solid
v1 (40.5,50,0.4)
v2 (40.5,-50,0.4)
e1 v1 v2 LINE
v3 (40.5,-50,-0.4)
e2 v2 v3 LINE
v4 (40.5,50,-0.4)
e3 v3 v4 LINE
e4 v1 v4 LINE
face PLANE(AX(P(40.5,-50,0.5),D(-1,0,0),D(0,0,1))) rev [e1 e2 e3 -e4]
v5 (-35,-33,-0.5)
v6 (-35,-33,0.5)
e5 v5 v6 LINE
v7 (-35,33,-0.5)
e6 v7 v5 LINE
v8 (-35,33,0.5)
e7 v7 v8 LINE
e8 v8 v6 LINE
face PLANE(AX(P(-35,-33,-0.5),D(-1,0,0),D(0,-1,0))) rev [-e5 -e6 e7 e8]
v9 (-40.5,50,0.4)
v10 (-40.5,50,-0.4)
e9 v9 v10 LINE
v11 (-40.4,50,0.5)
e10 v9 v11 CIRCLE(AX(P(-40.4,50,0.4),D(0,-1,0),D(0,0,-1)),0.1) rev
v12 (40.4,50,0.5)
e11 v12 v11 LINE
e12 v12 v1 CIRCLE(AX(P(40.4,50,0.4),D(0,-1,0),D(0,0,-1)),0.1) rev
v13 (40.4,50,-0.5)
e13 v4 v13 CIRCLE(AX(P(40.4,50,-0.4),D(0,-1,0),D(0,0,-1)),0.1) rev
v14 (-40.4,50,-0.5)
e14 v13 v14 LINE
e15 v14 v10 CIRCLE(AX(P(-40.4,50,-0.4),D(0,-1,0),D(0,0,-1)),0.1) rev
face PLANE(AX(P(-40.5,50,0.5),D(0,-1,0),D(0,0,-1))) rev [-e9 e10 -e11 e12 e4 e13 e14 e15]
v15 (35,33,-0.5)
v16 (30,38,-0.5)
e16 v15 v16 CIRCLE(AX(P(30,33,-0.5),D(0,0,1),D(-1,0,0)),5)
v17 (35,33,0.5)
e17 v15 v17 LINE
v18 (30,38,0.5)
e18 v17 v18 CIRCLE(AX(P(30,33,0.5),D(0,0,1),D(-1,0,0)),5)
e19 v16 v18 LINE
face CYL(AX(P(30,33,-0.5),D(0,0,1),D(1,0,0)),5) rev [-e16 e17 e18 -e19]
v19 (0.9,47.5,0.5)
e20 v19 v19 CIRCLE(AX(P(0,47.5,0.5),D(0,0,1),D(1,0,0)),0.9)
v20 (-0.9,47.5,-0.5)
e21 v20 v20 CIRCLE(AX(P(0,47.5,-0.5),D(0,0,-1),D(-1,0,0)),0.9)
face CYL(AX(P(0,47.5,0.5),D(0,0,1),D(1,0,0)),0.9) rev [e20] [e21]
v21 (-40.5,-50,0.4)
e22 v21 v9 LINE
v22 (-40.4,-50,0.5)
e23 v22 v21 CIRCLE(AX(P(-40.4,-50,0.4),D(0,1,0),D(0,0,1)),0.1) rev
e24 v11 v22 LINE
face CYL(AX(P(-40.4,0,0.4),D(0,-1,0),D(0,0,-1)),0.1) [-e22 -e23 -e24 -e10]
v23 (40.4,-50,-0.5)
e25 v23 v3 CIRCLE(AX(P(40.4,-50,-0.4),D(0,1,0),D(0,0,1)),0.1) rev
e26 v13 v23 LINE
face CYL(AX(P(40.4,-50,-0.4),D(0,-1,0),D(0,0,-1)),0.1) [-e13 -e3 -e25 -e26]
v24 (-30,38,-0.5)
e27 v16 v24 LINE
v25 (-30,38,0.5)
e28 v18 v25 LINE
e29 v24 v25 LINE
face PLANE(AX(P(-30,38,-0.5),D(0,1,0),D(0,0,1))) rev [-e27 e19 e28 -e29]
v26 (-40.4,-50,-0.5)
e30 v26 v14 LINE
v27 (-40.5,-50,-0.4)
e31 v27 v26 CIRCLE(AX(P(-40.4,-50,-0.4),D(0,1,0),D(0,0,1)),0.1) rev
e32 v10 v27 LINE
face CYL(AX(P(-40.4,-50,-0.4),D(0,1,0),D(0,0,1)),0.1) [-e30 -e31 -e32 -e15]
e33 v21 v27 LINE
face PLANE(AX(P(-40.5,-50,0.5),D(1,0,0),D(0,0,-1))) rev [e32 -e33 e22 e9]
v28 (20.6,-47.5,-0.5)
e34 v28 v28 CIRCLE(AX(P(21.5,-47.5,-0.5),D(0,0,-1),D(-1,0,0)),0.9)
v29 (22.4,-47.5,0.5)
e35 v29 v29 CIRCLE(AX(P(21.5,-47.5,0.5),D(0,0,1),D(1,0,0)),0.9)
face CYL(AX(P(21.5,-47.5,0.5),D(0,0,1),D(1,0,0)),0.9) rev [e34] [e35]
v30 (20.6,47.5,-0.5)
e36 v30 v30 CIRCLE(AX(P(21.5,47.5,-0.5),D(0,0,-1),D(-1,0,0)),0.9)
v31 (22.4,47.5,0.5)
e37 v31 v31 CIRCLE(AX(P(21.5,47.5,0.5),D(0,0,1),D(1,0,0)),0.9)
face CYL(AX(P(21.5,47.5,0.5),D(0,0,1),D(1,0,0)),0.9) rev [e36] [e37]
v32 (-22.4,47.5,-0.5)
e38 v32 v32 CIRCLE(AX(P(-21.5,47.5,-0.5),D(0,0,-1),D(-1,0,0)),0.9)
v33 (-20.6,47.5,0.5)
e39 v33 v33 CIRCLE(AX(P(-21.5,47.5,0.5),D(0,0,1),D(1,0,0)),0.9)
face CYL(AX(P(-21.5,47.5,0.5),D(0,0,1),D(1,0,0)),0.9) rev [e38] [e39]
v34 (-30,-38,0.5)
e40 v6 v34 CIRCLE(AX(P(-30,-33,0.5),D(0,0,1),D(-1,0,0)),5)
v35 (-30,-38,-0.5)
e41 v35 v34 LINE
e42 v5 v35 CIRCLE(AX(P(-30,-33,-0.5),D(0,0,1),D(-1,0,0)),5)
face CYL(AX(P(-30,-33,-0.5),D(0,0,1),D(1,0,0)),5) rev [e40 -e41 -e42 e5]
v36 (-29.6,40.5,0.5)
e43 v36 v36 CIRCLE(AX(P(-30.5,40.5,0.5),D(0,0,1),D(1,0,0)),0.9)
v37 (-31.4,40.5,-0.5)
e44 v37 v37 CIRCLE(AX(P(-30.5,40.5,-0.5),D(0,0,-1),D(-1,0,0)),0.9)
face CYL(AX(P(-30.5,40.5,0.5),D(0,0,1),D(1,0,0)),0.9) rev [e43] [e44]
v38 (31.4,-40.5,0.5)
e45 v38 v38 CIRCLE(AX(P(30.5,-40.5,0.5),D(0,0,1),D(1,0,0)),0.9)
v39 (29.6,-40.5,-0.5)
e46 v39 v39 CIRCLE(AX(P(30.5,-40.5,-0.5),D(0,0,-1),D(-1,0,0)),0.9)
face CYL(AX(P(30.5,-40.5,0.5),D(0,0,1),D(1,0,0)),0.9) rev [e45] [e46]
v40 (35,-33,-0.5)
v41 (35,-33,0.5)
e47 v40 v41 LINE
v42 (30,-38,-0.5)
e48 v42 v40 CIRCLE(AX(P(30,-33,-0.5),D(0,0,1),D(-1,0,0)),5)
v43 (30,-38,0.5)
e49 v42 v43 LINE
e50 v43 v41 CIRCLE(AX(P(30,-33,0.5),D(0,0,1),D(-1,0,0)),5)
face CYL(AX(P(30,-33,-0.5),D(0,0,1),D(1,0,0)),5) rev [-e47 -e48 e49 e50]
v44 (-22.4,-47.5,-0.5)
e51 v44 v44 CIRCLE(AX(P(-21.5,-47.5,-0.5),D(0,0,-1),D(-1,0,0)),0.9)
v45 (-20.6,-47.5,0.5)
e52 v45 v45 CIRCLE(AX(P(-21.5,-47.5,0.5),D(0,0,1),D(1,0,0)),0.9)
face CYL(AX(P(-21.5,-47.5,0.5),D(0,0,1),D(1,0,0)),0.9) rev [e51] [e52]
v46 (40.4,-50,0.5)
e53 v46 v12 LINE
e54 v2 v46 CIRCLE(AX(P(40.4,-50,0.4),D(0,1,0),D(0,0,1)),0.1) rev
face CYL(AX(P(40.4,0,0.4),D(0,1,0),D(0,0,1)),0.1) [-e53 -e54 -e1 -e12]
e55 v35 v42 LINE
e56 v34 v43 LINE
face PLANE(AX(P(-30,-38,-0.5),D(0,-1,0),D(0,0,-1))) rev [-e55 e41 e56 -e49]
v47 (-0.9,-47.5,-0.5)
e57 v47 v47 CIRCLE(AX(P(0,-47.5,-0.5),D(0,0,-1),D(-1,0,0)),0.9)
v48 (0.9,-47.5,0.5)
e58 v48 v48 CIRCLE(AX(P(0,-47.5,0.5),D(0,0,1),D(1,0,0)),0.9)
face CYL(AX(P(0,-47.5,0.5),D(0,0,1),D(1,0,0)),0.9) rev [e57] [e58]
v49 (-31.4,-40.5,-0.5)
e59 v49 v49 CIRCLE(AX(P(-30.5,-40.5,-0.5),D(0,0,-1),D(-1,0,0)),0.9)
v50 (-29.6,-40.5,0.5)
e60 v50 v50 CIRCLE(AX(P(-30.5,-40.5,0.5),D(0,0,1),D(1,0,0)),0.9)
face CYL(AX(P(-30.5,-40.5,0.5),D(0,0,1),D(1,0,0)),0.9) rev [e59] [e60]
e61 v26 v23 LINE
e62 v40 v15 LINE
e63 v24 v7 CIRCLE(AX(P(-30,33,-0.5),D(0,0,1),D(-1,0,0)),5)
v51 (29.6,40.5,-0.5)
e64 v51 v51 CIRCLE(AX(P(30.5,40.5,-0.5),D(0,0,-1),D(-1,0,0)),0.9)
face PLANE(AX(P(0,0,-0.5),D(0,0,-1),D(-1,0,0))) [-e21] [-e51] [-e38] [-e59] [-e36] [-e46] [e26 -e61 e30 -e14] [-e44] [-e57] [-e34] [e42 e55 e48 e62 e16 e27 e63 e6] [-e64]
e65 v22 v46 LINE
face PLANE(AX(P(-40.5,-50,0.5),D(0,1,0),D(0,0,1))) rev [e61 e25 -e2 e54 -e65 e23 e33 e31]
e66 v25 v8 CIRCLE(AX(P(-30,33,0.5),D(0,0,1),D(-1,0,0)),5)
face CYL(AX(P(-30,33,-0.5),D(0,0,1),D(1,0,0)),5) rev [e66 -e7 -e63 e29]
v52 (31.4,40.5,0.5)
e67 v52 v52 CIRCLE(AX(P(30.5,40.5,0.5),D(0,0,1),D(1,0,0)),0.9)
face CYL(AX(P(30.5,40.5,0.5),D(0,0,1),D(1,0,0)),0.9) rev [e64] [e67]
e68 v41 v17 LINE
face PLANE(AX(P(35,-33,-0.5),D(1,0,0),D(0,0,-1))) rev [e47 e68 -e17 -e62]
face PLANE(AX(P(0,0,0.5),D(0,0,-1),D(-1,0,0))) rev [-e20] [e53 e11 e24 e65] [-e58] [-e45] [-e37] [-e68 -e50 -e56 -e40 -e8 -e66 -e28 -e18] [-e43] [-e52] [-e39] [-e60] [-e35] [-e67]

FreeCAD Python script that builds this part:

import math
import FreeCAD as App
import Part
import Sketcher
from FreeCAD import Vector
Q = App.Units.Quantity


def edges_at(feature, points):
    """Names of the edges that pass closest to the given points."""
    edges = feature.Shape.Edges
    near = lambda p: min(range(len(edges)), key=lambda i: edges[i].distToShape(Part.Vertex(*p))[0])
    return sorted({f"Edge{near(p) + 1}" for p in points})


def add_polygon(sketch, points):
    """Adds a closed chain of lines whose ends are joined by coincident constraints."""
    first, n = sketch.GeometryCount, len(points)
    for a, b in zip(points, points[1:] + points[:1]):
        sketch.addGeometry(Part.LineSegment(App.Vector(*a, 0), App.Vector(*b, 0)), False)
    for i in range(n):
        sketch.addConstraint(Sketcher.Constraint("Coincident", first + i, 2, first + (i + 1) % n, 1))

doc = App.newDocument("Part")
params = doc.addObject("Spreadsheet::Sheet", "Params")
for row, (alias, value) in enumerate([
    ("sketch1_width", "81 mm"),
    ("sketch1_height", "100 mm"),
    ("pad1_length", "1 mm"),
    ("sketch2_radius", "5 mm"),
    ("sketch2_width", "60 mm"),
    ("sketch2_height", "66 mm"),
    ("sketch3_diameter", "1.8 mm"),
    ("hole_diameter", "1.8 mm"),
    ("hole_depth", "100 mm"),
    ("sketch4_diameter", "1.8 mm"),
    ("hole2_diameter", "1.8 mm"),
    ("hole2_depth", "100 mm"),
    ("sketch5_diameter", "1.8 mm"),
    ("hole3_diameter", "1.8 mm"),
    ("hole3_depth", "200 mm"),
    ("fillet_radius", "0.1 mm"),
], start=1):
    params.set(f"A{row}", alias)
    params.set(f"B{row}", "=" + value)
    params.setAlias(f"B{row}", alias)

body = doc.addObject("PartDesign::Body", "Body")

sketch1 = body.newObject("Sketcher::SketchObject", "Sketch")
sketch1.AttachmentSupport = (doc.getObject("XY_Plane"), [""])
sketch1.MapMode = "FlatFace"
add_polygon(sketch1, [(-40.5, 50), (-40.5, -50), (40.5, -50), (40.5, 50)])
sketch1.addConstraint(Sketcher.Constraint("Vertical", 0))
sketch1.addConstraint(Sketcher.Constraint("Horizontal", 1))
sketch1.addConstraint(Sketcher.Constraint("Vertical", 2))
sketch1.addConstraint(Sketcher.Constraint("Horizontal", 3))
sketch1.addConstraint(Sketcher.Constraint("Symmetric", 0, 2, 2, 2, -1, 1))
sketch1.addConstraint(Sketcher.Constraint("DistanceX", 1, 1, 1, 2, Q("81 mm")))
sketch1.addConstraint(Sketcher.Constraint("DistanceY", 0, 2, 0, 1, Q("100 mm")))
sketch1.setExpression("Constraints[9]", "Params.sketch1_width")
sketch1.setExpression("Constraints[10]", "Params.sketch1_height")
pad1 = body.newObject("PartDesign::Pad", "Pad")
pad1.Profile = sketch1
pad1.setExpression("Length", "Params.pad1_length")
pad1.Midplane = True

sketch2 = body.newObject("Sketcher::SketchObject", "Sketch001")
sketch2.AttachmentSupport = (doc.getObject("XY_Plane"), [""])
sketch2.MapMode = "FlatFace"
sketch2.AttachmentOffset = App.Placement(Vector(0, 0, 0.5), App.Rotation())
sketch2.addGeometry(Part.LineSegment(Vector(-30, -38, 0), Vector(30, -38, 0)), False)
sketch2.addGeometry(Part.ArcOfCircle(Part.Circle(Vector(30, -33, 0), Vector(0, 0, 1), 5), math.radians(-90), math.radians(0)), False)
sketch2.addGeometry(Part.LineSegment(Vector(35, -33, 0), Vector(35, 33, 0)), False)
sketch2.addGeometry(Part.ArcOfCircle(Part.Circle(Vector(30, 33, 0), Vector(0, 0, 1), 5), math.radians(0), math.radians(90)), False)
sketch2.addGeometry(Part.LineSegment(Vector(30, 38, 0), Vector(-30, 38, 0)), False)
sketch2.addGeometry(Part.ArcOfCircle(Part.Circle(Vector(-30, 33, 0), Vector(0, 0, 1), 5), math.radians(90), math.radians(180)), False)
sketch2.addGeometry(Part.LineSegment(Vector(-35, 33, 0), Vector(-35, -33, 0)), False)
sketch2.addGeometry(Part.ArcOfCircle(Part.Circle(Vector(-30, -33, 0), Vector(0, 0, 1), 5), math.radians(180), math.radians(270)), False)
sketch2.addConstraint(Sketcher.Constraint("Tangent", 0, 2, 1, 1))
sketch2.addConstraint(Sketcher.Constraint("Tangent", 1, 2, 2, 1))
sketch2.addConstraint(Sketcher.Constraint("Tangent", 2, 2, 3, 1))
sketch2.addConstraint(Sketcher.Constraint("Tangent", 3, 2, 4, 1))
sketch2.addConstraint(Sketcher.Constraint("Tangent", 4, 2, 5, 1))
sketch2.addConstraint(Sketcher.Constraint("Tangent", 5, 2, 6, 1))
sketch2.addConstraint(Sketcher.Constraint("Tangent", 6, 2, 7, 1))
sketch2.addConstraint(Sketcher.Constraint("Tangent", 7, 2, 0, 1))
sketch2.addConstraint(Sketcher.Constraint("Horizontal", 0))
sketch2.addConstraint(Sketcher.Constraint("Vertical", 2))
sketch2.addConstraint(Sketcher.Constraint("Horizontal", 4))
sketch2.addConstraint(Sketcher.Constraint("Vertical", 6))
sketch2.addConstraint(Sketcher.Constraint("Equal", 1, 3))
sketch2.addConstraint(Sketcher.Constraint("Equal", 3, 5))
sketch2.addConstraint(Sketcher.Constraint("Equal", 5, 7))
sketch2.addConstraint(Sketcher.Constraint("Symmetric", 1, 3, 5, 3, -1, 1))
sketch2.addConstraint(Sketcher.Constraint("Radius", 1, Q("5 mm")))
sketch2.addConstraint(Sketcher.Constraint("DistanceX", 0, 1, 0, 2, Q("60 mm")))
sketch2.addConstraint(Sketcher.Constraint("DistanceY", 2, 1, 2, 2, Q("66 mm")))
sketch2.setExpression("Constraints[16]", "Params.sketch2_radius")
sketch2.setExpression("Constraints[17]", "Params.sketch2_width")
sketch2.setExpression("Constraints[18]", "Params.sketch2_height")
pocket1 = body.newObject("PartDesign::Pocket", "Pocket")
pocket1.Profile = sketch2
pocket1.Type = "ThroughAll"

sketch3 = body.newObject("Sketcher::SketchObject", "Sketch002")
sketch3.AttachmentSupport = (doc.getObject("XY_Plane"), [""])
sketch3.MapMode = "FlatFace"
sketch3.AttachmentOffset = App.Placement(Vector(0, 0, 0.5), App.Rotation())
sketch3.addGeometry(Part.Circle(Vector(-30.5, 40.5, 0), Vector(0, 0, 1), 0.9), False)
sketch3.addGeometry(Part.Circle(Vector(30.5, 40.5, 0), Vector(0, 0, 1), 0.9), False)
sketch3.addGeometry(Part.Circle(Vector(-30.5, -40.5, 0), Vector(0, 0, 1), 0.9), False)
sketch3.addGeometry(Part.Circle(Vector(30.5, -40.5, 0), Vector(0, 0, 1), 0.9), False)
sketch3.addConstraint(Sketcher.Constraint("Equal", 0, 1))
sketch3.addConstraint(Sketcher.Constraint("Equal", 1, 2))
sketch3.addConstraint(Sketcher.Constraint("Equal", 2, 3))
sketch3.addConstraint(Sketcher.Constraint("Symmetric", 1, 3, 2, 3, -1, 1))
sketch3.addConstraint(Sketcher.Constraint("Symmetric", 0, 3, 3, 3, -1, 1))
sketch3.addConstraint(Sketcher.Constraint("Symmetric", 0, 3, 1, 3, -2))
sketch3.addConstraint(Sketcher.Constraint("Diameter", 0, Q("1.8 mm")))
sketch3.addConstraint(Sketcher.Constraint("DistanceX", 0, 3, 1, 3, Q("61 mm")))
sketch3.addConstraint(Sketcher.Constraint("DistanceY", 2, 3, 0, 3, Q("81 mm")))
sketch3.setExpression("Constraints[6]", "Params.sketch3_diameter")
doc.recompute()
hole = body.newObject("PartDesign::Hole", "Hole")
hole.Profile = sketch3
hole.ThreadType = "None"
hole.setExpression("Diameter", "Params.hole_diameter")
hole.DepthType = "Dimension"
hole.setExpression("Depth", "Params.hole_depth")
hole.DrillPoint = "Angled"
hole.DrillPointAngle = 118

sketch4 = body.newObject("Sketcher::SketchObject", "Sketch003")
sketch4.AttachmentSupport = (doc.getObject("XY_Plane"), [""])
sketch4.MapMode = "FlatFace"
sketch4.AttachmentOffset = App.Placement(Vector(0, 0, 0.5), App.Rotation())
sketch4.addGeometry(Part.Circle(Vector(-21.5, 47.5, 0), Vector(0, 0, 1), 0.9), False)
sketch4.addGeometry(Part.Circle(Vector(21.5, 47.5, 0), Vector(0, 0, 1), 0.9), False)
sketch4.addGeometry(Part.Circle(Vector(-21.5, -47.5, 0), Vector(0, 0, 1), 0.9), False)
sketch4.addGeometry(Part.Circle(Vector(21.5, -47.5, 0), Vector(0, 0, 1), 0.9), False)
sketch4.addConstraint(Sketcher.Constraint("Equal", 0, 1))
sketch4.addConstraint(Sketcher.Constraint("Equal", 1, 2))
sketch4.addConstraint(Sketcher.Constraint("Equal", 2, 3))
sketch4.addConstraint(Sketcher.Constraint("Symmetric", 1, 3, 2, 3, -1, 1))
sketch4.addConstraint(Sketcher.Constraint("Symmetric", 0, 3, 3, 3, -1, 1))
sketch4.addConstraint(Sketcher.Constraint("Symmetric", 0, 3, 1, 3, -2))
sketch4.addConstraint(Sketcher.Constraint("Diameter", 0, Q("1.8 mm")))
sketch4.addConstraint(Sketcher.Constraint("DistanceX", 0, 3, 1, 3, Q("43 mm")))
sketch4.addConstraint(Sketcher.Constraint("DistanceY", 2, 3, 0, 3, Q("95 mm")))
sketch4.setExpression("Constraints[6]", "Params.sketch4_diameter")
doc.recompute()
hole2 = body.newObject("PartDesign::Hole", "Hole001")
hole2.Profile = sketch4
hole2.ThreadType = "None"
hole2.setExpression("Diameter", "Params.hole2_diameter")
hole2.DepthType = "Dimension"
hole2.setExpression("Depth", "Params.hole2_depth")
hole2.DrillPoint = "Angled"
hole2.DrillPointAngle = 118

sketch5 = body.newObject("Sketcher::SketchObject", "Sketch004")
sketch5.AttachmentSupport = (doc.getObject("XY_Plane"), [""])
sketch5.MapMode = "FlatFace"
sketch5.AttachmentOffset = App.Placement(Vector(0, 0, 0.5), App.Rotation())
sketch5.addGeometry(Part.Circle(Vector(0, 47.5, 0), Vector(0, 0, 1), 0.9), False)
sketch5.addGeometry(Part.Circle(Vector(0, -47.5, 0), Vector(0, 0, 1), 0.9), False)
sketch5.addConstraint(Sketcher.Constraint("Equal", 0, 1))
sketch5.addConstraint(Sketcher.Constraint("Symmetric", 0, 3, 1, 3, -1, 1))
sketch5.addConstraint(Sketcher.Constraint("PointOnObject", 0, 3, -2))
sketch5.addConstraint(Sketcher.Constraint("Diameter", 0, Q("1.8 mm")))
sketch5.addConstraint(Sketcher.Constraint("DistanceY", 1, 3, 0, 3, Q("95 mm")))
sketch5.setExpression("Constraints[3]", "Params.sketch5_diameter")
doc.recompute()
hole3 = body.newObject("PartDesign::Hole", "Hole002")
hole3.Profile = sketch5
hole3.ThreadType = "None"
hole3.setExpression("Diameter", "Params.hole3_diameter")
hole3.DepthType = "Dimension"
hole3.setExpression("Depth", "Params.hole3_depth")
hole3.DrillPoint = "Angled"
hole3.DrillPointAngle = 118
doc.recompute()

fillet = body.newObject("PartDesign::Fillet", "Fillet")
fillet.Base = (hole3, edges_at(hole3, [
    (-40.5, 0, 0.5),
    (40.5, 0, 0.5),
    (-40.5, 0, -0.5),
    (40.5, 0, -0.5),
]))
fillet.setExpression("Radius", "Params.fillet_radius")

doc.recompute()
